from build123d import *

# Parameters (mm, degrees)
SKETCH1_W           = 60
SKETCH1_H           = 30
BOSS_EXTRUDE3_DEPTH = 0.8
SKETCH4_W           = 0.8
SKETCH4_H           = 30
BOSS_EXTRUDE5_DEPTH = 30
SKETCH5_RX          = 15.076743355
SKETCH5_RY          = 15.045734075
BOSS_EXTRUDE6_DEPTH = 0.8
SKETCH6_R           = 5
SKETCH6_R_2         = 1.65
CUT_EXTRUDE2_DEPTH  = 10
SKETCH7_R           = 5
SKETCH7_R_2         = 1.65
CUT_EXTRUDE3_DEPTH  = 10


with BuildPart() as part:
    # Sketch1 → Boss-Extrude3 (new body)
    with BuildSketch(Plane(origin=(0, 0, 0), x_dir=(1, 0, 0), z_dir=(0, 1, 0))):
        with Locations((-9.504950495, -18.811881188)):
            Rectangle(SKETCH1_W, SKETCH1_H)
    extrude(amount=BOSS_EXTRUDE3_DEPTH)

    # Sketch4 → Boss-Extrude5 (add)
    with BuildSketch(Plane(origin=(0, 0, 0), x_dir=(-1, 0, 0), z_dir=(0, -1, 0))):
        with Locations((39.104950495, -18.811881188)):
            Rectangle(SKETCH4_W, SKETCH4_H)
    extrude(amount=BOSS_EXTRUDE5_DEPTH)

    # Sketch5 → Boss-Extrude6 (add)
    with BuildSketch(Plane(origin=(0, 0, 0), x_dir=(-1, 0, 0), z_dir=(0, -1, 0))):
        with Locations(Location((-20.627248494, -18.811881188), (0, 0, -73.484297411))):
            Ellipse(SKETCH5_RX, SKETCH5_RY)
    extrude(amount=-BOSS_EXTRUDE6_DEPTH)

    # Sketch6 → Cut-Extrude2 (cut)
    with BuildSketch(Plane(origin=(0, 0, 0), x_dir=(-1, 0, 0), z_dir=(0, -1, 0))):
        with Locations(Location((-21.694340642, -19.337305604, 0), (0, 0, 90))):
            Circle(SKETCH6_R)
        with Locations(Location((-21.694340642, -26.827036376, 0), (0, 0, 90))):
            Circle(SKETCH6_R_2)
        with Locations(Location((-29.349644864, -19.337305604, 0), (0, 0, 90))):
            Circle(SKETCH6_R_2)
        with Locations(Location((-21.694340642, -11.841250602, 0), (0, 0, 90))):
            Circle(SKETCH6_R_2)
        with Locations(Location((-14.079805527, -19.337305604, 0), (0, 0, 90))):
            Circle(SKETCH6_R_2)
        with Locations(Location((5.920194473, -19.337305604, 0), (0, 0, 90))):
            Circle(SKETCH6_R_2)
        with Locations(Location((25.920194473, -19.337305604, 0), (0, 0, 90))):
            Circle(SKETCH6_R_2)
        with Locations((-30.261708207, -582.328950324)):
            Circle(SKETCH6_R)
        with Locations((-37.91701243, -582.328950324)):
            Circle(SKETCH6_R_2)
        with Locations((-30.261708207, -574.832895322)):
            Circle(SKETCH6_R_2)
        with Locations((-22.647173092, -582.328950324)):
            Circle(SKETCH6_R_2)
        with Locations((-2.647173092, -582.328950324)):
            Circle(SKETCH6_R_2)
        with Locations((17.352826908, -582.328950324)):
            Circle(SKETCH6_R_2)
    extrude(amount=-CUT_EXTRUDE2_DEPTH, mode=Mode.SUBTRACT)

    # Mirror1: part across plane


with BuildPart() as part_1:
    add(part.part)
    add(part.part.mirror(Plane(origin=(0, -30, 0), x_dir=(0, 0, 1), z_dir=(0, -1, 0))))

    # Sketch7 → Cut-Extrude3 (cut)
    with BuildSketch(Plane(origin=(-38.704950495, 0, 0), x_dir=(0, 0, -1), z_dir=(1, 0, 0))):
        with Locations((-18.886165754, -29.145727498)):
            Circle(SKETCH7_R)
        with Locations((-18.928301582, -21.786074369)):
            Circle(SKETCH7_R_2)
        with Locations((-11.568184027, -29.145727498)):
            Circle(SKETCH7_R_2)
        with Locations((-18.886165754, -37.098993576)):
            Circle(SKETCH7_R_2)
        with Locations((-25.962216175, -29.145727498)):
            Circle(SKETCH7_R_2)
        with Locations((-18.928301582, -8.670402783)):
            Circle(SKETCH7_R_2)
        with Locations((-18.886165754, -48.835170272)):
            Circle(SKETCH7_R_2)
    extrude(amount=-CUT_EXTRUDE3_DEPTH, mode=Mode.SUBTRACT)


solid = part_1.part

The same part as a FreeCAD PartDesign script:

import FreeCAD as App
import Part
import Sketcher

V = App.Vector
Q = App.Units.Quantity


def add_polygon(sketch, points):
    """Adds a closed chain of lines whose ends are joined by coincident constraints."""
    first, n = sketch.GeometryCount, len(points)
    for a, b in zip(points, points[1:] + points[:1]):
        sketch.addGeometry(Part.LineSegment(App.Vector(*a, 0), App.Vector(*b, 0)), False)
    for i in range(n):
        sketch.addConstraint(Sketcher.Constraint("Coincident", first + i, 2, first + (i + 1) % n, 1))

doc = App.newDocument("Part")
body = doc.addObject("PartDesign::Body", "Body")

# Sketch on XZ plane
sketch1 = body.newObject("Sketcher::SketchObject", "Sketch")
sketch1.AttachmentSupport = (doc.getObject("XZ_Plane"), [""])
sketch1.MapMode = "FlatFace"
add_polygon(sketch1, [(-40, 4), (-40, 34), (20, 34), (20, 4)])  # lines 0-3
sketch1.addConstraint(Sketcher.Constraint("Vertical", 0))
sketch1.addConstraint(Sketcher.Constraint("Horizontal", 1))
sketch1.addConstraint(Sketcher.Constraint("Vertical", 2))
sketch1.addConstraint(Sketcher.Constraint("Horizontal", 3))
sketch1.addConstraint(Sketcher.Constraint("DistanceX", 1, 1, 1, 2, Q("60 mm")))
sketch1.addConstraint(Sketcher.Constraint("DistanceY", 0, 1, 0, 2, Q("30 mm")))
sketch1.addConstraint(Sketcher.Constraint("DistanceX", 0, 2, -1, 1, Q("39.50495 mm")))
sketch1.addConstraint(Sketcher.Constraint("DistanceY", -1, 1, 0, 2, Q("33.811881 mm")))
pad1 = body.newObject("PartDesign::Pad", "Pad")
pad1.Profile = sketch1
pad1.Length = 0.8
pad1.Reversed = True

# Sketch on XZ plane
sketch2 = body.newObject("Sketcher::SketchObject", "Sketch001")
sketch2.AttachmentSupport = (doc.getObject("XZ_Plane"), [""])
sketch2.MapMode = "FlatFace"
add_polygon(sketch2, [(-38.7, 3.8), (-38.7, 33.8), (-39.5, 33.8), (-39.5, 3.8)])  # lines 0-3
sketch2.addConstraint(Sketcher.Constraint("Vertical", 0))
sketch2.addConstraint(Sketcher.Constraint("Horizontal", 1))
sketch2.addConstraint(Sketcher.Constraint("Vertical", 2))
sketch2.addConstraint(Sketcher.Constraint("Horizontal", 3))
sketch2.addConstraint(Sketcher.Constraint("DistanceY", 0, 1, 0, 2, Q("30 mm")))
sketch2.addConstraint(Sketcher.Constraint("DistanceX", 1, 2, 1, 1, Q("0.8 mm")))
sketch2.addConstraint(Sketcher.Constraint("DistanceX", 0, 2, -1, 1, Q("38.70495 mm")))
sketch2.addConstraint(Sketcher.Constraint("DistanceY", -1, 1, 0, 2, Q("33.811881 mm")))
pad2 = body.newObject("PartDesign::Pad", "Pad001")
pad2.Profile = sketch2
pad2.Length = 30

# Sketch on XZ plane
sketch3 = body.newObject("Sketcher::SketchObject", "Sketch002")
sketch3.AttachmentSupport = (doc.getObject("XZ_Plane"), [""])
sketch3.MapMode = "FlatFace"
sketch3.addGeometry(Part.Ellipse(V(16.34126, 33.266586, 0), V(6.202273, 14.534708, 0), V(20.627248, 18.811881, 0)), False)
sketch3.addConstraint(Sketcher.Constraint("Block", 0))
pad3 = body.newObject("PartDesign::Pad", "Pad002")
pad3.Profile = sketch3
pad3.Length = 0.8
pad3.Reversed = True

# Sketch on XZ plane
sketch4 = body.newObject("Sketcher::SketchObject", "Sketch003")
sketch4.AttachmentSupport = (doc.getObject("XZ_Plane"), [""])
sketch4.MapMode = "FlatFace"
sketch4.addGeometry(Part.Circle(V(21.7, 19.3, 0), V(0, 0, 1), 5), False)
sketch4.addGeometry(Part.Circle(V(21.7, 26.8, 0), V(0, 0, 1), 1.6), False)
sketch4.addGeometry(Part.Circle(V(29.3, 19.3, 0), V(0, 0, 1), 1.6), False)
sketch4.addGeometry(Part.Circle(V(21.7, 11.8, 0), V(0, 0, 1), 1.6), False)
sketch4.addGeometry(Part.Circle(V(14.1, 19.3, 0), V(0, 0, 1), 1.6), False)
sketch4.addGeometry(Part.Circle(V(-5.9, 19.3, 0), V(0, 0, 1), 1.6), False)
sketch4.addGeometry(Part.Circle(V(-25.9, 19.3, 0), V(0, 0, 1), 1.6), False)
sketch4.addGeometry(Part.Circle(V(30.3, 582.3, 0), V(0, 0, 1), 5), False)
sketch4.addGeometry(Part.Circle(V(37.9, 582.3, 0), V(0, 0, 1), 1.6), False)
sketch4.addGeometry(Part.Circle(V(30.3, 574.8, 0), V(0, 0, 1), 1.6), False)
sketch4.addGeometry(Part.Circle(V(22.6, 582.3, 0), V(0, 0, 1), 1.6), False)
sketch4.addGeometry(Part.Circle(V(2.6, 582.3, 0), V(0, 0, 1), 1.6), False)
sketch4.addGeometry(Part.Circle(V(-17.4, 582.3, 0), V(0, 0, 1), 1.6), False)
sketch4.addConstraint(Sketcher.Constraint("Equal", 1, 2))
sketch4.addConstraint(Sketcher.Constraint("Equal", 2, 3))
sketch4.addConstraint(Sketcher.Constraint("Equal", 3, 4))
sketch4.addConstraint(Sketcher.Constraint("Equal", 4, 5))
sketch4.addConstraint(Sketcher.Constraint("Equal", 5, 6))
sketch4.addConstraint(Sketcher.Constraint("Equal", 0, 7))
sketch4.addConstraint(Sketcher.Constraint("Equal", 6, 8))
sketch4.addConstraint(Sketcher.Constraint("Equal", 8, 9))
sketch4.addConstraint(Sketcher.Constraint("Equal", 9, 10))
sketch4.addConstraint(Sketcher.Constraint("Equal", 10, 11))
sketch4.addConstraint(Sketcher.Constraint("Equal", 11, 12))
sketch4.addConstraint(Sketcher.Constraint("Horizontal", 0, 3, 2, 3))
sketch4.addConstraint(Sketcher.Constraint("Horizontal", 2, 3, 4, 3))
sketch4.addConstraint(Sketcher.Constraint("Horizontal", 4, 3, 5, 3))
sketch4.addConstraint(Sketcher.Constraint("Horizontal", 5, 3, 6, 3))
sketch4.addConstraint(Sketcher.Constraint("Horizontal", 7, 3, 8, 3))
sketch4.addConstraint(Sketcher.Constraint("Horizontal", 8, 3, 10, 3))
sketch4.addConstraint(Sketcher.Constraint("Horizontal", 10, 3, 11, 3))
sketch4.addConstraint(Sketcher.Constraint("Horizontal", 11, 3, 12, 3))
sketch4.addConstraint(Sketcher.Constraint("Vertical", 0, 3, 1, 3))
sketch4.addConstraint(Sketcher.Constraint("Vertical", 1, 3, 3, 3))
sketch4.addConstraint(Sketcher.Constraint("Vertical", 7, 3, 9, 3))
sketch4.addConstraint(Sketcher.Constraint("Diameter", 0, Q("10 mm")))
sketch4.addConstraint(Sketcher.Constraint("Diameter", 1, Q("3.3 mm")))
sketch4.addConstraint(Sketcher.Constraint("DistanceX", 5, 3, 4, 3, Q("20 mm")))
sketch4.addConstraint(Sketcher.Constraint("DistanceX", 6, 3, 5, 3, Q("20 mm")))
sketch4.addConstraint(Sketcher.Constraint("DistanceX", 11, 3, 10, 3, Q("20 mm")))
sketch4.addConstraint(Sketcher.Constraint("DistanceX", 12, 3, 11, 3, Q("20 mm")))
sketch4.addConstraint(Sketcher.Constraint("DistanceX", -1, 1, 0, 3, Q("21.694341 mm")))
sketch4.addConstraint(Sketcher.Constraint("DistanceY", -1, 1, 3, 3, Q("11.841251 mm")))
sketch4.addConstraint(Sketcher.Constraint("DistanceX", -1, 1, 7, 3, Q("30.261708 mm")))
sketch4.addConstraint(Sketcher.Constraint("DistanceY", -1, 1, 7, 3, Q("582.32895 mm")))
sketch4.addConstraint(Sketcher.Constraint("DistanceY", 0, 3, 1, 3, Q("7.489731 mm")))
sketch4.addConstraint(Sketcher.Constraint("DistanceX", 4, 3, 2, 3, Q("15.269839 mm")))
sketch4.addConstraint(Sketcher.Constraint("DistanceX", 1, 3, 8, 3, Q("16.222672 mm")))
sketch4.addConstraint(Sketcher.Constraint("DistanceY", 1, 3, 9, 3, Q("548.005859 mm")))
sketch4.addConstraint(Sketcher.Constraint("DistanceX", 10, 3, 8, 3, Q("15.269839 mm")))
sketch4.addConstraint(Sketcher.Constraint("DistanceY", -1, 1, 0, 3, Q("19.337306 mm")))
sketch4.addConstraint(Sketcher.Constraint("DistanceX", -1, 1, 2, 3, Q("29.349645 mm")))
pocket1 = body.newObject("PartDesign::Pocket", "Pocket")
pocket1.Profile = sketch4
pocket1.Length = 10
body2 = doc.addObject("PartDesign::Body", "Body001")
doc.recompute()

body2.BaseFeature = body
doc.recompute()

mirroring = doc.addObject("Part::Mirroring", "Mirroring")
mirroring.Source = body
mirroring.Base = V(0, -30, 0)
mirroring.Normal = V(0, -1, 0)
body3 = doc.addObject("PartDesign::Body", "Body002")
body3.BaseFeature = mirroring
boolean = body2.newObject("PartDesign::Boolean", "Boolean")
boolean.Type = "Fuse"
boolean.addObjects([body3])
doc.recompute()

# Sketch on YZ plane
sketch5 = body2.newObject("Sketcher::SketchObject", "Sketch004")
sketch5.AttachmentSupport = (doc.getObject("YZ_Plane001"), [""])
sketch5.MapMode = "FlatFace"
sketch5.AttachmentOffset = App.Placement(V(0, 0, -38.70495), App.Rotation())
sketch5.addGeometry(Part.Circle(V(-29.1, 18.9, 0), V(0, 0, 1), 5), False)
sketch5.addGeometry(Part.Circle(V(-21.8, 18.9, 0), V(0, 0, 1), 1.6), False)
sketch5.addGeometry(Part.Circle(V(-29.1, 11.6, 0), V(0, 0, 1), 1.6), False)
sketch5.addGeometry(Part.Circle(V(-37.1, 18.9, 0), V(0, 0, 1), 1.6), False)
sketch5.addGeometry(Part.Circle(V(-29.1, 26, 0), V(0, 0, 1), 1.6), False)
sketch5.addGeometry(Part.Circle(V(-8.7, 18.9, 0), V(0, 0, 1), 1.6), False)
sketch5.addGeometry(Part.Circle(V(-48.8, 18.9, 0), V(0, 0, 1), 1.6), False)
sketch5.addConstraint(Sketcher.Constraint("Equal", 1, 2))
sketch5.addConstraint(Sketcher.Constraint("Equal", 2, 3))
sketch5.addConstraint(Sketcher.Constraint("Equal", 3, 4))
sketch5.addConstraint(Sketcher.Constraint("Equal", 4, 5))
sketch5.addConstraint(Sketcher.Constraint("Equal", 5, 6))
sketch5.addConstraint(Sketcher.Constraint("Horizontal", 0, 3, 3, 3))
sketch5.addConstraint(Sketcher.Constraint("Horizontal", 1, 3, 5, 3))
sketch5.addConstraint(Sketcher.Constraint("Horizontal", 3, 3, 6, 3))
sketch5.addConstraint(Sketcher.Constraint("Vertical", 0, 3, 2, 3))
sketch5.addConstraint(Sketcher.Constraint("Vertical", 2, 3, 4, 3))
sketch5.addConstraint(Sketcher.Constraint("Diameter", 0, Q("10 mm")))
sketch5.addConstraint(Sketcher.Constraint("Diameter", 1, Q("3.3 mm")))
sketch5.addConstraint(Sketcher.Constraint("DistanceY", -1, 1, 1, 3, Q("18.928302 mm")))
sketch5.addConstraint(Sketcher.Constraint("DistanceX", 6, 3, -1, 1, Q("48.83517 mm")))
sketch5.addConstraint(Sketcher.Constraint("DistanceY", 2, 3, 0, 3, Q("7.317982 mm")))
sketch5.addConstraint(Sketcher.Constraint("DistanceX", 3, 3, 1, 3, Q("15.312919 mm")))
sketch5.addConstraint(Sketcher.Constraint("DistanceY", 0, 3, 4, 3, Q("7.07605 mm")))
sketch5.addConstraint(Sketcher.Constraint("DistanceX", 1, 3, 5, 3, Q("13.115672 mm")))
sketch5.addConstraint(Sketcher.Constraint("DistanceX", 0, 3, -1, 1, Q("29.145727 mm")))
sketch5.addConstraint(Sketcher.Constraint("DistanceY", -1, 1, 0, 3, Q("18.886166 mm")))
sketch5.addConstraint(Sketcher.Constraint("DistanceX", 1, 3, -1, 1, Q("21.786074 mm")))
pocket2 = body2.newObject("PartDesign::Pocket", "Pocket001")
pocket2.Profile = sketch5
pocket2.Length = 10
mirroring.Visibility = False

doc.recompute()
